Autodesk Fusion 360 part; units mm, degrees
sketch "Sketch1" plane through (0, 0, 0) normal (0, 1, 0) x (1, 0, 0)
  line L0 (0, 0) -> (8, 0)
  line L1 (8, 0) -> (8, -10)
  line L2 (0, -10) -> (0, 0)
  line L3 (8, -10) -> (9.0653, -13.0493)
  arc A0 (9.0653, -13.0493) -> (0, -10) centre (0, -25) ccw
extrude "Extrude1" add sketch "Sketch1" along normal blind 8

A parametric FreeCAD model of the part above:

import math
import FreeCAD as App
import Part
import Sketcher
from FreeCAD import Vector

doc = App.newDocument("Part")
body = doc.addObject("PartDesign::Body", "Body")

sketch1 = body.newObject("Sketcher::SketchObject", "Sketch")
sketch1.AttachmentSupport = (doc.getObject("XZ_Plane"), [""])
sketch1.MapMode = "FlatFace"
sketch1.addGeometry([
    Part.LineSegment(Vector(8, 0, 0), Vector(0, 0, 0)),
    Part.LineSegment(Vector(0, 0, 0), Vector(0, 10, 0)),
    Part.ArcOfCircle(Part.Circle(Vector(0, 25, 0), Vector(0, 0, 1), 15), math.radians(-90), math.radians(-53)),
    Part.LineSegment(Vector(9.1, 13, 0), Vector(8, 10, 0)),
    Part.LineSegment(Vector(8, 10, 0), Vector(8, 0, 0)),
], False)
sketch1.addConstraint([
    Sketcher.Constraint("Coincident", 0, 2, 1, 1),
    Sketcher.Constraint("Coincident", 1, 2, 2, 1),
    Sketcher.Constraint("Coincident", 2, 2, 3, 1),
    Sketcher.Constraint("Coincident", 3, 2, 4, 1),
    Sketcher.Constraint("Coincident", 4, 2, 0, 1),
    Sketcher.Constraint("Horizontal", 0),
    Sketcher.Constraint("Vertical", 1),
    Sketcher.Constraint("Vertical", 4),
    Sketcher.Constraint("Coincident", 0, 2, -1, 1),
    Sketcher.Constraint("PointOnObject", 2, 3, -2),
    Sketcher.Constraint("Horizontal", 1, 2, 3, 2),
    Sketcher.Constraint("Radius", 2, 15.0),
    Sketcher.Constraint("DistanceX", 0, 2, 0, 1, 8.0),
    Sketcher.Constraint("DistanceY", 1, 1, 1, 2, 10.0),
    Sketcher.Constraint("Distance", 3, 3.23),
])
pad1 = body.newObject("PartDesign::Pad", "Pad")
pad1.Profile = sketch1
pad1.Length = 8
pad1.Reversed = True

doc.recompute()
